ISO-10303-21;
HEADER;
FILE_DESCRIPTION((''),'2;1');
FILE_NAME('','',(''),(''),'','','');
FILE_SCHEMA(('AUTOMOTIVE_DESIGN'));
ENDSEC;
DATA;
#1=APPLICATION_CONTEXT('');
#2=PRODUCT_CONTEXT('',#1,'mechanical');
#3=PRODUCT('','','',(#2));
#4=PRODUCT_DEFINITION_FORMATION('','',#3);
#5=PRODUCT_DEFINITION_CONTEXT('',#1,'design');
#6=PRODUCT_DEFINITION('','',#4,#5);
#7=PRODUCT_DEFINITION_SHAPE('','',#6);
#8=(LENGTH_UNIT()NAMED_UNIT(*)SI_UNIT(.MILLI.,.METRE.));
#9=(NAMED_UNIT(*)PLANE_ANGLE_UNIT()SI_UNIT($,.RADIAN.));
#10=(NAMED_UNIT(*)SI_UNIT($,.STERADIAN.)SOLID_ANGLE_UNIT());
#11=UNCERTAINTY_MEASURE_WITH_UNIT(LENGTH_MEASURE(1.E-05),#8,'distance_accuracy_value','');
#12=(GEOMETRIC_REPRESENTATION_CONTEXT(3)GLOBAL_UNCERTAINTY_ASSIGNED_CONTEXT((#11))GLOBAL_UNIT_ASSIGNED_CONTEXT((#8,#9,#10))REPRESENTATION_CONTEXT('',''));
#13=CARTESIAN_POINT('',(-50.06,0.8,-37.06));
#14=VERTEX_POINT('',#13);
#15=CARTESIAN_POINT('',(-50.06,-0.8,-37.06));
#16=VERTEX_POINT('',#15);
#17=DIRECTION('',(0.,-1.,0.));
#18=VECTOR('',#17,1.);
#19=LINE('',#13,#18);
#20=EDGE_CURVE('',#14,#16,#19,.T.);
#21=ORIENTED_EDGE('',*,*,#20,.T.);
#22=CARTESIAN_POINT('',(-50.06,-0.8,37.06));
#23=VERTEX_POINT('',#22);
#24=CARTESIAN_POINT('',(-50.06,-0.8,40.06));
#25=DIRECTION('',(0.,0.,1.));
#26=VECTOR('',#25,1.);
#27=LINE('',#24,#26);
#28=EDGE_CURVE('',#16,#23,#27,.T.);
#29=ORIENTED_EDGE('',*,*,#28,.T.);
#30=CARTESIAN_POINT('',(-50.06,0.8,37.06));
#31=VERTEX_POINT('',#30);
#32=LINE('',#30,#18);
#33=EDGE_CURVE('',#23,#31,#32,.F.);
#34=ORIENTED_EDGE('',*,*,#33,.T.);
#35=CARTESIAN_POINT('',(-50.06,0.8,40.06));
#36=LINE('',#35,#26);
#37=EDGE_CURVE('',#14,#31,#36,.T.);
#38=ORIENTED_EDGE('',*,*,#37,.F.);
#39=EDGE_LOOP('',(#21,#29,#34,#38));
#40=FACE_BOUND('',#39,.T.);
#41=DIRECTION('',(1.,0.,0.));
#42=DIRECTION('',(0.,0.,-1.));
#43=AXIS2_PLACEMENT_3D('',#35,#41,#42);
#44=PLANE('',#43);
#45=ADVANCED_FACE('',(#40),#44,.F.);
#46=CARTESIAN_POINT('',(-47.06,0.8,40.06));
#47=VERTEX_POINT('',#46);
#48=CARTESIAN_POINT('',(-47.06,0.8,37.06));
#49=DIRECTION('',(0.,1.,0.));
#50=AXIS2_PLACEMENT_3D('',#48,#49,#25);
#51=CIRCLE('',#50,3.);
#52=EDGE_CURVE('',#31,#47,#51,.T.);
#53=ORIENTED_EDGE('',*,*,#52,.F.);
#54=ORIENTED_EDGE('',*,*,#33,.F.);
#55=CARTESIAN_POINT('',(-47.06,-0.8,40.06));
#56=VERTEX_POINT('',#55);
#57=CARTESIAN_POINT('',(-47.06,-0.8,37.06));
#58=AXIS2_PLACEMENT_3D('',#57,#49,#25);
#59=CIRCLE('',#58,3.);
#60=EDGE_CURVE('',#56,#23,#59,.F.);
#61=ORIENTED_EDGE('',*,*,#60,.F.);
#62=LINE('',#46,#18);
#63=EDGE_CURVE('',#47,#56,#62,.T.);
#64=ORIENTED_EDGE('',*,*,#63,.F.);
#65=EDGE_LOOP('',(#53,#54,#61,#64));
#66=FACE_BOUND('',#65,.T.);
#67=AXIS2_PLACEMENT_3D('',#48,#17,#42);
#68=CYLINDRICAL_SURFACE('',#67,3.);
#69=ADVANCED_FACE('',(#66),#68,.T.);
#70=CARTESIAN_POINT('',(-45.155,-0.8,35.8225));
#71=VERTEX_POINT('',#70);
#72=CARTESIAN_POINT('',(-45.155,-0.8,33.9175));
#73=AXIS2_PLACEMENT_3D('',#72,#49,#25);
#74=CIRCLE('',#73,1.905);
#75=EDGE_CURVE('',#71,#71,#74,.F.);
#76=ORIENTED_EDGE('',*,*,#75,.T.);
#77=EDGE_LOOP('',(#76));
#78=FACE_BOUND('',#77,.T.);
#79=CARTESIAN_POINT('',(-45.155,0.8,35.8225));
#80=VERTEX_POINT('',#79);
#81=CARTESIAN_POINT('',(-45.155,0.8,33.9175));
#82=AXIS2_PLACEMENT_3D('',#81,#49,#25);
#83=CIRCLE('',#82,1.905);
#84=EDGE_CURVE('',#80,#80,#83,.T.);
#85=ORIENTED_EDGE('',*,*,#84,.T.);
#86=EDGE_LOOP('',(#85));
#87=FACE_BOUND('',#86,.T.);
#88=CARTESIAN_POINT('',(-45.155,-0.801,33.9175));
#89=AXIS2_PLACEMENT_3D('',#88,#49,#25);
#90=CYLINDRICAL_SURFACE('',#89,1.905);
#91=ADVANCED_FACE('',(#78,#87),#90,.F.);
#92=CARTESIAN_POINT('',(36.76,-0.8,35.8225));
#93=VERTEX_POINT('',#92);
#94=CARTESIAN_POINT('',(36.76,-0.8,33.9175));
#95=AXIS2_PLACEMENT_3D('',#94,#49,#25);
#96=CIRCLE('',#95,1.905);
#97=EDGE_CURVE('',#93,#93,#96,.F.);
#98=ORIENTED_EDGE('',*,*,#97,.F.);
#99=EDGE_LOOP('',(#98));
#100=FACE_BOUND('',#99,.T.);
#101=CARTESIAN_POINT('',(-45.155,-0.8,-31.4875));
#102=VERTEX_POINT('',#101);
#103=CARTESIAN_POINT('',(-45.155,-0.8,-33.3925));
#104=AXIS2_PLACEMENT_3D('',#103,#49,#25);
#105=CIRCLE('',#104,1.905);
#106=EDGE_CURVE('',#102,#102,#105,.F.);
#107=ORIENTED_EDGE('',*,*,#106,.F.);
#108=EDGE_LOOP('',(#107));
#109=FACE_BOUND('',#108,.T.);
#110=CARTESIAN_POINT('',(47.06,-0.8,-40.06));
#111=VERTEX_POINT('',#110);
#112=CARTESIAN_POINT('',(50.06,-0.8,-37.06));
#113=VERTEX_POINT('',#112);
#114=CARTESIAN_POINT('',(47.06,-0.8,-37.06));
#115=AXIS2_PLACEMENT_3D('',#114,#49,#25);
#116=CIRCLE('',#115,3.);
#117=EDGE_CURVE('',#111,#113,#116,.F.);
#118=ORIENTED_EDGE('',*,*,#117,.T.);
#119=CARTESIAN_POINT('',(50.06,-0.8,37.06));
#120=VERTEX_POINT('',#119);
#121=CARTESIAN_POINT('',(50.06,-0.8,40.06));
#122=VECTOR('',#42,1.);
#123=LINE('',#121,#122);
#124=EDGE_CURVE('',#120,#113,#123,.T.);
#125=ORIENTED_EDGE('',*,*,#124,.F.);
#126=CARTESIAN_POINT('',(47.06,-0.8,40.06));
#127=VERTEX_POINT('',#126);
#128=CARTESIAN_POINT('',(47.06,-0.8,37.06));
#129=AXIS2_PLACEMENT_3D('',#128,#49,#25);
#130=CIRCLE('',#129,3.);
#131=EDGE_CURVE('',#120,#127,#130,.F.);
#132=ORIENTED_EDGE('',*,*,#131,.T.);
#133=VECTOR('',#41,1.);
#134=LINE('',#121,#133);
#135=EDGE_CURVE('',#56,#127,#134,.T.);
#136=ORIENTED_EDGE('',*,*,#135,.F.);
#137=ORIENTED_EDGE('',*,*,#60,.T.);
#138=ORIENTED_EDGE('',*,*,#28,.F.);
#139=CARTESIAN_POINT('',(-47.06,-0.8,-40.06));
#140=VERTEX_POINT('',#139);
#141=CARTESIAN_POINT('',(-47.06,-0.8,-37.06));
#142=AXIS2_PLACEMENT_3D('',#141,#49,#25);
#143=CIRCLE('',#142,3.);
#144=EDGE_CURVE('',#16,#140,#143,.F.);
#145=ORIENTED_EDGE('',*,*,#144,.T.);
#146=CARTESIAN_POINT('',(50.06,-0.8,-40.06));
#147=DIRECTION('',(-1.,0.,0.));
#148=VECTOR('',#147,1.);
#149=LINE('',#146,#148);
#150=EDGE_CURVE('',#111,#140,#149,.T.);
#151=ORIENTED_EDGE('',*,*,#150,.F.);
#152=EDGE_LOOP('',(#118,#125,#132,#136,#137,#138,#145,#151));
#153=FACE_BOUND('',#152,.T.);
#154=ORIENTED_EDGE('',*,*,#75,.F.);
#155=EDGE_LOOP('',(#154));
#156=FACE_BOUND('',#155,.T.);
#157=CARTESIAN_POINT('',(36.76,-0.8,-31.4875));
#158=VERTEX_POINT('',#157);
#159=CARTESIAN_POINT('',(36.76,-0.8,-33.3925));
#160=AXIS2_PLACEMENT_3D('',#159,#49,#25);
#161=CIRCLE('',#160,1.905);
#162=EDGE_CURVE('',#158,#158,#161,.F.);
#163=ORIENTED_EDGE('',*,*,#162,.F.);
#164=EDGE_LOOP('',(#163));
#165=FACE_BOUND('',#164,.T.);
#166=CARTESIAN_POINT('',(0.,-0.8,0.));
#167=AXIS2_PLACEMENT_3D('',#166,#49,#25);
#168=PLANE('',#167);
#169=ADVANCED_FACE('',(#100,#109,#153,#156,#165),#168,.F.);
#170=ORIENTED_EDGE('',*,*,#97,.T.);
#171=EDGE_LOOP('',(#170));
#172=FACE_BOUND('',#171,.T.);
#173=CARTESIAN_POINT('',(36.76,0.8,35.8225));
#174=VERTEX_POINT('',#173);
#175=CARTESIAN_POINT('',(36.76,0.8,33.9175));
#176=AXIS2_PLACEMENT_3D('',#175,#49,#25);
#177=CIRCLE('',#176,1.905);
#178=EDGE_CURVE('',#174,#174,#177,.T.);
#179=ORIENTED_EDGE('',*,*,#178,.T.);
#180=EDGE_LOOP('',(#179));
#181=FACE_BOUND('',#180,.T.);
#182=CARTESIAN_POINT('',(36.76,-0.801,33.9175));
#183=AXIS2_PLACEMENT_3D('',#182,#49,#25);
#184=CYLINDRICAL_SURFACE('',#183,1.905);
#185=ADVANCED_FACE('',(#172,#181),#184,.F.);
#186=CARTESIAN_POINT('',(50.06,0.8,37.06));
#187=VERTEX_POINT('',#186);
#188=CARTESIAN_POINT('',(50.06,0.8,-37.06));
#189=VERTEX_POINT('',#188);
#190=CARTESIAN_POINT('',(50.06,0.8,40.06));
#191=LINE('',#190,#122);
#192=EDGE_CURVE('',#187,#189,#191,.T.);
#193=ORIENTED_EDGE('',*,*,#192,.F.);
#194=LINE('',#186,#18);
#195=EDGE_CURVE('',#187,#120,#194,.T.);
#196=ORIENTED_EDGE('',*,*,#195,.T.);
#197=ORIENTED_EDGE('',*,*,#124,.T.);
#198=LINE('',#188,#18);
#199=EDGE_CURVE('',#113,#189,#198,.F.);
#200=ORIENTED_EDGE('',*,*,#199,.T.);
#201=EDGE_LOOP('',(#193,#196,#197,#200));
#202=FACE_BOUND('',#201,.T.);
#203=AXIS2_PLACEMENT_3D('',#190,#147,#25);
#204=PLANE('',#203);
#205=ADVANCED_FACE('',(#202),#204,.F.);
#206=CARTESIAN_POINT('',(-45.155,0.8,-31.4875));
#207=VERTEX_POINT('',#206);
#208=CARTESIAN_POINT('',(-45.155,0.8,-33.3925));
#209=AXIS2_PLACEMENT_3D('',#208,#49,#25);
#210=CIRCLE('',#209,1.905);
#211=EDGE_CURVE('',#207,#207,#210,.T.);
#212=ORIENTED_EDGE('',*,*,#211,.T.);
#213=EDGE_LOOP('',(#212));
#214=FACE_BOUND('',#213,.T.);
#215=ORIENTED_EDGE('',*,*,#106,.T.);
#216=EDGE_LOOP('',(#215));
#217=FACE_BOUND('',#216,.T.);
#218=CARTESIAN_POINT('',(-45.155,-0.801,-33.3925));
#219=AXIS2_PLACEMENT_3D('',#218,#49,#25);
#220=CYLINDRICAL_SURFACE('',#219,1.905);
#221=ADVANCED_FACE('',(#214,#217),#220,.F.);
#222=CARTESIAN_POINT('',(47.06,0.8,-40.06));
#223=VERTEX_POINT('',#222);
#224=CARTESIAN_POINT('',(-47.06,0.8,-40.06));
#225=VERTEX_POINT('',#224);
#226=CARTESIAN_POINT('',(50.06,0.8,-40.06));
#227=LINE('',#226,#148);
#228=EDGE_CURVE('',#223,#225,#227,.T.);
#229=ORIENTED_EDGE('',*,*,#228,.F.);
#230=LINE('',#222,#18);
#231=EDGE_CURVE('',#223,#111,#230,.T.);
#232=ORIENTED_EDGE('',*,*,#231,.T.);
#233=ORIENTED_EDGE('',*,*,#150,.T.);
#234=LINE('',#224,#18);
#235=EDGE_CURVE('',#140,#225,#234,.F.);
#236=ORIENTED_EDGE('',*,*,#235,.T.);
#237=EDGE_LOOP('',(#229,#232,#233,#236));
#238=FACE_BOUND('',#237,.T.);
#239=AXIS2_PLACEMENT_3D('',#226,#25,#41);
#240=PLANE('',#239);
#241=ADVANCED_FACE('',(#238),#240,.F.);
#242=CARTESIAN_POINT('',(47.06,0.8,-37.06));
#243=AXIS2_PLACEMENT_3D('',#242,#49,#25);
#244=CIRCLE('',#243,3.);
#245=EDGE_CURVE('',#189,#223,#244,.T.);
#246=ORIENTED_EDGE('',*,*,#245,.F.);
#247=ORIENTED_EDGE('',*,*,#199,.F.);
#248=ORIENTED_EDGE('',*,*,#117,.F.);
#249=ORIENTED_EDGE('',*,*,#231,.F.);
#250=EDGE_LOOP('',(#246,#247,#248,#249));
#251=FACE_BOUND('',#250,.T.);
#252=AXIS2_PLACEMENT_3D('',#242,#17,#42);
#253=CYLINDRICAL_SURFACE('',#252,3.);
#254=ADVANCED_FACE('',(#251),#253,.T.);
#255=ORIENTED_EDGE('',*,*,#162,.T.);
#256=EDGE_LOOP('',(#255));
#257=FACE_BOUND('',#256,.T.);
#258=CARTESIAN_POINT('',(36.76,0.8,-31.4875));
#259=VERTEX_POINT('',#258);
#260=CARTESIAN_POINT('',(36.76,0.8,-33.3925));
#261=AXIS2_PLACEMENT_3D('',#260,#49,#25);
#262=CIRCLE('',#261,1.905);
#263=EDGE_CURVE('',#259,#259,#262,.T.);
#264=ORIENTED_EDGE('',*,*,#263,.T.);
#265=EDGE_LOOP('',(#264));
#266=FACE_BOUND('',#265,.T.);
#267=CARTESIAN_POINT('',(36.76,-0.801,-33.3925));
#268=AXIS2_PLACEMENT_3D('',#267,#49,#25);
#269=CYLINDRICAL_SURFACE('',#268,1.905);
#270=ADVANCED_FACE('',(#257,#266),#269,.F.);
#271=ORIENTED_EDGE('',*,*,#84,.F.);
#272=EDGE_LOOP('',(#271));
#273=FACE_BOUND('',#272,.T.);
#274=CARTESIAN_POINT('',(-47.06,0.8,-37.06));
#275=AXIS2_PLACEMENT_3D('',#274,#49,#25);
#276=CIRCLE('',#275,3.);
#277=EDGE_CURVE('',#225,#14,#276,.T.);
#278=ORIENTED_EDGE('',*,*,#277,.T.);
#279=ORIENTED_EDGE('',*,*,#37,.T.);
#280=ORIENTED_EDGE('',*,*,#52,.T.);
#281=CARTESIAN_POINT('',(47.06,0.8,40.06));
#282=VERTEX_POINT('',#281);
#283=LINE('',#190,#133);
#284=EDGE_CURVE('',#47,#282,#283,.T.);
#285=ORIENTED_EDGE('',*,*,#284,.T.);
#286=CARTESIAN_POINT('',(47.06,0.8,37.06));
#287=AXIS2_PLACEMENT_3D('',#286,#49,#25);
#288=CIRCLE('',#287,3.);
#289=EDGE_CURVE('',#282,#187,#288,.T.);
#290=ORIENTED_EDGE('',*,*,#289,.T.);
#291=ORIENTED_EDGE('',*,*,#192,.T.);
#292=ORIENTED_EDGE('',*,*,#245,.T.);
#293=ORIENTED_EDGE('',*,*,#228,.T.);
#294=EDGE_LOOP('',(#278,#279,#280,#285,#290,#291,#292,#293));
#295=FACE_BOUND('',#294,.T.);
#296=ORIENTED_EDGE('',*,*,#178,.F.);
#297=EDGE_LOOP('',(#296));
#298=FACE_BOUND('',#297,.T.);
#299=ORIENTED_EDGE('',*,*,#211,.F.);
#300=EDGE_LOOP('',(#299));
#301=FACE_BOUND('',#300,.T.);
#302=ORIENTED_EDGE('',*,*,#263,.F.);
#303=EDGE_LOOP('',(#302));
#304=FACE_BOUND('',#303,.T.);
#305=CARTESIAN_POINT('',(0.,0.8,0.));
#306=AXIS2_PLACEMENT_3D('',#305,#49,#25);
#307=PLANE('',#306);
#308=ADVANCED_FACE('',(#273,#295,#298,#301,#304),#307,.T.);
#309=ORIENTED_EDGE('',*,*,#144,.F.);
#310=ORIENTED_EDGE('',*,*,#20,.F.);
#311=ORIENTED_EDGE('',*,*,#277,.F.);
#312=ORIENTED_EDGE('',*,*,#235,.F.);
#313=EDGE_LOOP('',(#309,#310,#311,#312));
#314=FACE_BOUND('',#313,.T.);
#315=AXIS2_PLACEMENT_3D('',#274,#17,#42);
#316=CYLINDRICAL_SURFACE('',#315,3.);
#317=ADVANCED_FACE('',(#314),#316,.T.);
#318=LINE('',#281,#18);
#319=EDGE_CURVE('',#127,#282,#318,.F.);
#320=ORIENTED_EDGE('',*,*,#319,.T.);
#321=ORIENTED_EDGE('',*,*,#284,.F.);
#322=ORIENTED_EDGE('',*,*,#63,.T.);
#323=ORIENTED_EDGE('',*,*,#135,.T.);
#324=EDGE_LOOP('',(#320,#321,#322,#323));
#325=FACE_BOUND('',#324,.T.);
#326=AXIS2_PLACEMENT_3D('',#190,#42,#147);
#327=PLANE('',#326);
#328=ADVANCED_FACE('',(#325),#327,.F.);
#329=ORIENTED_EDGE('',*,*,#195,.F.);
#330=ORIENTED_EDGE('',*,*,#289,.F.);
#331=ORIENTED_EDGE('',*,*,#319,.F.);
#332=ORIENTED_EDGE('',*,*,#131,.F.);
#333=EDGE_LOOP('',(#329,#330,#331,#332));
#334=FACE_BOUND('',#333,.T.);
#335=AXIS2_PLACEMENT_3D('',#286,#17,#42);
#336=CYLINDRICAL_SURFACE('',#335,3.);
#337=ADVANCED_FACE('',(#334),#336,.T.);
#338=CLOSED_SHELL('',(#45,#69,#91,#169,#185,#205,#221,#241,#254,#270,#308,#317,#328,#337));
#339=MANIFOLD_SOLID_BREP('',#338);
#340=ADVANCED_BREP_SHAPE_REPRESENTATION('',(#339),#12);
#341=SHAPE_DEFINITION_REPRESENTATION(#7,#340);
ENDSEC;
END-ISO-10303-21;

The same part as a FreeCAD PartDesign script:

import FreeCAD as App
import Part
import Sketcher

V = App.Vector


def edges_at(feature, points):
    """Names of the edges that pass closest to the given points."""
    edges = feature.Shape.Edges
    near = lambda p: min(range(len(edges)), key=lambda i: edges[i].distToShape(Part.Vertex(*p))[0])
    return sorted({f"Edge{near(p) + 1}" for p in points})

doc = App.newDocument("Part")
params = doc.addObject("Spreadsheet::Sheet", "Params")
for row, (alias, value) in enumerate([
    ("sketch1_width", "100.12 mm"),
    ("sketch1_height", "80.12 mm"),
    ("pad1_length", "1.6 mm"),
    ("fillet_radius", "3 mm"),
    ("sketch2_diameter", "3.81 mm"),
    ("sketch3_diameter", "3.81 mm"),
    ("sketch4_diameter", "3.81 mm"),
    ("sketch5_diameter", "3.81 mm"),
], start=1):
    params.set(f"A{row}", alias)
    params.set(f"B{row}", "=" + value)
    params.setAlias(f"B{row}", alias)

body = doc.addObject("PartDesign::Body", "Body")

# Sketch on XZ plane
sketch1 = body.newObject("Sketcher::SketchObject", "Sketch")
sketch1.AttachmentSupport = (doc.getObject("XZ_Plane"), [""])
sketch1.MapMode = "FlatFace"
sketch1.addGeometry(Part.LineSegment(V(-50, -40, 0), V(-50, 40, 0)), False)
sketch1.addGeometry(Part.LineSegment(V(-50, 40, 0), V(50, 40, 0)), False)
sketch1.addGeometry(Part.LineSegment(V(50, 40, 0), V(50, -40, 0)), False)
sketch1.addGeometry(Part.LineSegment(V(50, -40, 0), V(-50, -40, 0)), False)
sketch1.addConstraint(Sketcher.Constraint("Coincident", 0, 2, 1, 1))
sketch1.addConstraint(Sketcher.Constraint("Coincident", 1, 2, 2, 1))
sketch1.addConstraint(Sketcher.Constraint("Coincident", 2, 2, 3, 1))
sketch1.addConstraint(Sketcher.Constraint("Coincident", 3, 2, 0, 1))
sketch1.addConstraint(Sketcher.Constraint("Vertical", 0))
sketch1.addConstraint(Sketcher.Constraint("Horizontal", 1))
sketch1.addConstraint(Sketcher.Constraint("Vertical", 2))
sketch1.addConstraint(Sketcher.Constraint("Horizontal", 3))
sketch1.addConstraint(Sketcher.Constraint("Symmetric", 0, 2, 2, 2, -1, 1))
sketch1.addConstraint(Sketcher.Constraint("DistanceX", 1, 1, 1, 2, 100.12))
sketch1.addConstraint(Sketcher.Constraint("DistanceY", 0, 1, 0, 2, 80.12))
sketch1.setExpression("Constraints[9]", "Params.sketch1_width")
sketch1.setExpression("Constraints[10]", "Params.sketch1_height")
pad1 = body.newObject("PartDesign::Pad", "Pad")
pad1.Profile = sketch1
pad1.setExpression("Length", "Params.pad1_length")
pad1.Midplane = True
doc.recompute()

fillet = body.newObject("PartDesign::Fillet", "Fillet")
fillet.Base = (pad1, edges_at(pad1, [
    (-50.06, 0, -40.06),
    (50.06, 0, -40.06),
    (50.06, 0, 40.06),
    (-50.06, 0, 40.06),
]))
fillet.setExpression("Radius", "Params.fillet_radius")

# Sketch on XZ plane
sketch2 = body.newObject("Sketcher::SketchObject", "Sketch001")
sketch2.AttachmentSupport = (doc.getObject("XZ_Plane"), [""])
sketch2.MapMode = "FlatFace"
sketch2.AttachmentOffset = App.Placement(V(0, 0, -0.8), App.Rotation())
sketch2.addGeometry(Part.Circle(V(-45.2, -33.4, 0), V(0, 0, 1), 1.9), False)
sketch2.addConstraint(Sketcher.Constraint("Diameter", 0, 3.81))
sketch2.addConstraint(Sketcher.Constraint("DistanceX", 0, 3, -1, 1, 45.155))
sketch2.addConstraint(Sketcher.Constraint("DistanceY", 0, 3, -1, 1, 33.3925))
sketch2.setExpression("Constraints[0]", "Params.sketch2_diameter")
pocket1 = body.newObject("PartDesign::Pocket", "Pocket")
pocket1.Profile = sketch2
pocket1.Type = "UpToFirst"
pocket1.Reversed = True

# Sketch on XZ plane
sketch3 = body.newObject("Sketcher::SketchObject", "Sketch002")
sketch3.AttachmentSupport = (doc.getObject("XZ_Plane"), [""])
sketch3.MapMode = "FlatFace"
sketch3.AttachmentOffset = App.Placement(V(0, 0, -0.8), App.Rotation())
sketch3.addGeometry(Part.Circle(V(-45.2, 33.9, 0), V(0, 0, 1), 1.9), False)
sketch3.addConstraint(Sketcher.Constraint("Diameter", 0, 3.81))
sketch3.addConstraint(Sketcher.Constraint("DistanceX", 0, 3, -1, 1, 45.155))
sketch3.addConstraint(Sketcher.Constraint("DistanceY", -1, 1, 0, 3, 33.9175))
sketch3.setExpression("Constraints[0]", "Params.sketch3_diameter")
pocket2 = body.newObject("PartDesign::Pocket", "Pocket001")
pocket2.Profile = sketch3
pocket2.Type = "UpToFirst"
pocket2.Reversed = True

# Sketch on XZ plane
sketch4 = body.newObject("Sketcher::SketchObject", "Sketch003")
sketch4.AttachmentSupport = (doc.getObject("XZ_Plane"), [""])
sketch4.MapMode = "FlatFace"
sketch4.AttachmentOffset = App.Placement(V(0, 0, -0.8), App.Rotation())
sketch4.addGeometry(Part.Circle(V(36.8, 33.9, 0), V(0, 0, 1), 1.9), False)
sketch4.addConstraint(Sketcher.Constraint("Diameter", 0, 3.81))
sketch4.addConstraint(Sketcher.Constraint("DistanceX", -1, 1, 0, 3, 36.76))
sketch4.addConstraint(Sketcher.Constraint("DistanceY", -1, 1, 0, 3, 33.9175))
sketch4.setExpression("Constraints[0]", "Params.sketch4_diameter")
pocket3 = body.newObject("PartDesign::Pocket", "Pocket002")
pocket3.Profile = sketch4
pocket3.Type = "UpToFirst"
pocket3.Reversed = True

# Sketch on XZ plane
sketch5 = body.newObject("Sketcher::SketchObject", "Sketch004")
sketch5.AttachmentSupport = (doc.getObject("XZ_Plane"), [""])
sketch5.MapMode = "FlatFace"
sketch5.AttachmentOffset = App.Placement(V(0, 0, -0.8), App.Rotation())
sketch5.addGeometry(Part.Circle(V(36.8, -33.4, 0), V(0, 0, 1), 1.9), False)
sketch5.addConstraint(Sketcher.Constraint("Diameter", 0, 3.81))
sketch5.addConstraint(Sketcher.Constraint("DistanceX", -1, 1, 0, 3, 36.76))
sketch5.addConstraint(Sketcher.Constraint("DistanceY", 0, 3, -1, 1, 33.3925))
sketch5.setExpression("Constraints[0]", "Params.sketch5_diameter")
pocket4 = body.newObject("PartDesign::Pocket", "Pocket003")
pocket4.Profile = sketch5
pocket4.Type = "UpToFirst"
pocket4.Reversed = True

doc.recompute()
